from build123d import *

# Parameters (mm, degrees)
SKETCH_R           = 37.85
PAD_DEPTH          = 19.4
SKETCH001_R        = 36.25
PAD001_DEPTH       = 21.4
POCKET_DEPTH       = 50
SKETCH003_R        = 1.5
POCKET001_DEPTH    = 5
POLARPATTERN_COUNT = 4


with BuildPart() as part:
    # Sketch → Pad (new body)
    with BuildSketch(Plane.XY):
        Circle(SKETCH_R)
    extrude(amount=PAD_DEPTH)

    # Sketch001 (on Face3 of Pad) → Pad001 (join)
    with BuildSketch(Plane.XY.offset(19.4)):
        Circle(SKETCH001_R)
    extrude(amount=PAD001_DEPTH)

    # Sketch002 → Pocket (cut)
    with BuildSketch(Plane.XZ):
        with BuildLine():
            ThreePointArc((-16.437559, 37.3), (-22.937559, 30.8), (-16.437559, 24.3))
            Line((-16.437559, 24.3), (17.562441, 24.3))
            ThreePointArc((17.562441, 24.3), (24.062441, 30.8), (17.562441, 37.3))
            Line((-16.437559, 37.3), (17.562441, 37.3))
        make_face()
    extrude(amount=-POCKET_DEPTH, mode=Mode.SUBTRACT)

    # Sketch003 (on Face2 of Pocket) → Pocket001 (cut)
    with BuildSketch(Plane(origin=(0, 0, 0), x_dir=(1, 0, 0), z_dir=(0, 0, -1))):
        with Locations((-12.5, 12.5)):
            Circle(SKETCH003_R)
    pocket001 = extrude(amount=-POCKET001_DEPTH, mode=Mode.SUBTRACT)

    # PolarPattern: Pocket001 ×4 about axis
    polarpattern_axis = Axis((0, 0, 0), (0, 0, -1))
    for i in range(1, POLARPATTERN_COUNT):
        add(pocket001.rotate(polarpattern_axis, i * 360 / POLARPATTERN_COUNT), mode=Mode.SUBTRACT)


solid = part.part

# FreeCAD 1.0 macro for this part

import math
import FreeCAD as App
import Part
import Sketcher

V = App.Vector

doc = App.newDocument("Part")
params = doc.addObject("Spreadsheet::Sheet", "Params")
for row, (alias, value) in enumerate([
    ("sketch1_diameter", "75.7 mm"),
    ("pad1_length", "19.4 mm"),
    ("sketch2_diameter", "72.5 mm"),
    ("pad2_length", "21.4 mm"),
    ("sketch3_radius", "6.5 mm"),
    ("sketch3_width", "34 mm"),
    ("pocket1_length", "50 mm"),
    ("sketch4_diameter", "3 mm"),
    ("pocket2_length", "5 mm"),
], start=1):
    params.set(f"A{row}", alias)
    params.set(f"B{row}", "=" + value)
    params.setAlias(f"B{row}", alias)

body = doc.addObject("PartDesign::Body", "Body")

# Sketch on XY plane
sketch1 = body.newObject("Sketcher::SketchObject", "Sketch")
sketch1.AttachmentSupport = (doc.getObject("XY_Plane"), [""])
sketch1.MapMode = "FlatFace"
sketch1.addGeometry(Part.Circle(V(0, 0, 0), V(0, 0, 1), 37.85), False)
sketch1.addConstraint([
    Sketcher.Constraint("Coincident", 0, 3, -1, 1),
    Sketcher.Constraint("Diameter", 0, 75.7),
])
sketch1.setExpression("Constraints[1]", "Params.sketch1_diameter")
pad1 = body.newObject("PartDesign::Pad", "Pad")
pad1.Profile = sketch1
pad1.setExpression("Length", "Params.pad1_length")

# Sketch on XY plane
sketch2 = body.newObject("Sketcher::SketchObject", "Sketch001")
sketch2.AttachmentSupport = (doc.getObject("XY_Plane"), [""])
sketch2.MapMode = "FlatFace"
sketch2.AttachmentOffset = App.Placement(V(0, 0, 19.4), App.Rotation())
sketch2.addGeometry(Part.Circle(V(0, 0, 0), V(0, 0, 1), 36.25), False)
sketch2.addConstraint([
    Sketcher.Constraint("Coincident", 0, 3, -1, 1),
    Sketcher.Constraint("Diameter", 0, 72.5),
])
sketch2.setExpression("Constraints[1]", "Params.sketch2_diameter")
pad2 = body.newObject("PartDesign::Pad", "Pad001")
pad2.Profile = sketch2
pad2.setExpression("Length", "Params.pad2_length")

# Sketch on XZ plane
sketch3 = body.newObject("Sketcher::SketchObject", "Sketch002")
sketch3.AttachmentSupport = (doc.getObject("XZ_Plane"), [""])
sketch3.MapMode = "FlatFace"
sketch3.addGeometry([
    Part.ArcOfCircle(Part.Circle(V(-16.437559, 30.8, 0), V(0, 0, 1), 6.5), math.radians(90), math.radians(270)),
    Part.LineSegment(V(-16.437559, 24.3, 0), V(17.562441, 24.3, 0)),
    Part.ArcOfCircle(Part.Circle(V(17.562441, 30.8, 0), V(0, 0, 1), 6.5), math.radians(-90), math.radians(90)),
    Part.LineSegment(V(17.562441, 37.3, 0), V(-16.437559, 37.3, 0)),
], False)
sketch3.addConstraint([
    Sketcher.Constraint("Tangent", 0, 2, 1, 1),
    Sketcher.Constraint("Tangent", 1, 2, 2, 1),
    Sketcher.Constraint("Tangent", 2, 2, 3, 1),
    Sketcher.Constraint("Tangent", 3, 2, 0, 1),
    Sketcher.Constraint("Horizontal", 1),
    Sketcher.Constraint("Horizontal", 3),
    Sketcher.Constraint("Radius", 0, 6.5),
    Sketcher.Constraint("DistanceX", 1, 1, 1, 2, 34.0),
    Sketcher.Constraint("DistanceY", -1, 1, 0, 3, 30.8),
    Sketcher.Constraint("DistanceX", 0, 3, -1, 1, 16.437559),
])
sketch3.setExpression("Constraints[6]", "Params.sketch3_radius")
sketch3.setExpression("Constraints[7]", "Params.sketch3_width")
pocket1 = body.newObject("PartDesign::Pocket", "Pocket")
pocket1.Profile = sketch3
pocket1.setExpression("Length", "Params.pocket1_length")

# Sketch on XY plane
sketch4 = body.newObject("Sketcher::SketchObject", "Sketch003")
sketch4.AttachmentSupport = (doc.getObject("XY_Plane"), [""])
sketch4.MapMode = "FlatFace"
sketch4.addGeometry(Part.Circle(V(-12.5, -12.5, 0), V(0, 0, 1), 1.5), False)
sketch4.addConstraint([
    Sketcher.Constraint("Diameter", 0, 3.0),
    Sketcher.Constraint("DistanceX", 0, 3, -1, 1, 12.5),
    Sketcher.Constraint("DistanceY", 0, 3, -1, 1, 12.5),
])
sketch4.setExpression("Constraints[0]", "Params.sketch4_diameter")
pocket2 = body.newObject("PartDesign::Pocket", "Pocket001")
pocket2.Profile = sketch4
pocket2.setExpression("Length", "Params.pocket2_length")
pocket2.Reversed = True
doc.recompute()

polarpattern = body.newObject("PartDesign::PolarPattern", "PolarPattern")
polarpattern.Originals = [pocket2]
polarpattern.Axis = (doc.getObject("Z_Axis"), [""])
polarpattern.Angle = 360
polarpattern.Occurrences = 4
body.Tip = polarpattern

doc.recompute()
